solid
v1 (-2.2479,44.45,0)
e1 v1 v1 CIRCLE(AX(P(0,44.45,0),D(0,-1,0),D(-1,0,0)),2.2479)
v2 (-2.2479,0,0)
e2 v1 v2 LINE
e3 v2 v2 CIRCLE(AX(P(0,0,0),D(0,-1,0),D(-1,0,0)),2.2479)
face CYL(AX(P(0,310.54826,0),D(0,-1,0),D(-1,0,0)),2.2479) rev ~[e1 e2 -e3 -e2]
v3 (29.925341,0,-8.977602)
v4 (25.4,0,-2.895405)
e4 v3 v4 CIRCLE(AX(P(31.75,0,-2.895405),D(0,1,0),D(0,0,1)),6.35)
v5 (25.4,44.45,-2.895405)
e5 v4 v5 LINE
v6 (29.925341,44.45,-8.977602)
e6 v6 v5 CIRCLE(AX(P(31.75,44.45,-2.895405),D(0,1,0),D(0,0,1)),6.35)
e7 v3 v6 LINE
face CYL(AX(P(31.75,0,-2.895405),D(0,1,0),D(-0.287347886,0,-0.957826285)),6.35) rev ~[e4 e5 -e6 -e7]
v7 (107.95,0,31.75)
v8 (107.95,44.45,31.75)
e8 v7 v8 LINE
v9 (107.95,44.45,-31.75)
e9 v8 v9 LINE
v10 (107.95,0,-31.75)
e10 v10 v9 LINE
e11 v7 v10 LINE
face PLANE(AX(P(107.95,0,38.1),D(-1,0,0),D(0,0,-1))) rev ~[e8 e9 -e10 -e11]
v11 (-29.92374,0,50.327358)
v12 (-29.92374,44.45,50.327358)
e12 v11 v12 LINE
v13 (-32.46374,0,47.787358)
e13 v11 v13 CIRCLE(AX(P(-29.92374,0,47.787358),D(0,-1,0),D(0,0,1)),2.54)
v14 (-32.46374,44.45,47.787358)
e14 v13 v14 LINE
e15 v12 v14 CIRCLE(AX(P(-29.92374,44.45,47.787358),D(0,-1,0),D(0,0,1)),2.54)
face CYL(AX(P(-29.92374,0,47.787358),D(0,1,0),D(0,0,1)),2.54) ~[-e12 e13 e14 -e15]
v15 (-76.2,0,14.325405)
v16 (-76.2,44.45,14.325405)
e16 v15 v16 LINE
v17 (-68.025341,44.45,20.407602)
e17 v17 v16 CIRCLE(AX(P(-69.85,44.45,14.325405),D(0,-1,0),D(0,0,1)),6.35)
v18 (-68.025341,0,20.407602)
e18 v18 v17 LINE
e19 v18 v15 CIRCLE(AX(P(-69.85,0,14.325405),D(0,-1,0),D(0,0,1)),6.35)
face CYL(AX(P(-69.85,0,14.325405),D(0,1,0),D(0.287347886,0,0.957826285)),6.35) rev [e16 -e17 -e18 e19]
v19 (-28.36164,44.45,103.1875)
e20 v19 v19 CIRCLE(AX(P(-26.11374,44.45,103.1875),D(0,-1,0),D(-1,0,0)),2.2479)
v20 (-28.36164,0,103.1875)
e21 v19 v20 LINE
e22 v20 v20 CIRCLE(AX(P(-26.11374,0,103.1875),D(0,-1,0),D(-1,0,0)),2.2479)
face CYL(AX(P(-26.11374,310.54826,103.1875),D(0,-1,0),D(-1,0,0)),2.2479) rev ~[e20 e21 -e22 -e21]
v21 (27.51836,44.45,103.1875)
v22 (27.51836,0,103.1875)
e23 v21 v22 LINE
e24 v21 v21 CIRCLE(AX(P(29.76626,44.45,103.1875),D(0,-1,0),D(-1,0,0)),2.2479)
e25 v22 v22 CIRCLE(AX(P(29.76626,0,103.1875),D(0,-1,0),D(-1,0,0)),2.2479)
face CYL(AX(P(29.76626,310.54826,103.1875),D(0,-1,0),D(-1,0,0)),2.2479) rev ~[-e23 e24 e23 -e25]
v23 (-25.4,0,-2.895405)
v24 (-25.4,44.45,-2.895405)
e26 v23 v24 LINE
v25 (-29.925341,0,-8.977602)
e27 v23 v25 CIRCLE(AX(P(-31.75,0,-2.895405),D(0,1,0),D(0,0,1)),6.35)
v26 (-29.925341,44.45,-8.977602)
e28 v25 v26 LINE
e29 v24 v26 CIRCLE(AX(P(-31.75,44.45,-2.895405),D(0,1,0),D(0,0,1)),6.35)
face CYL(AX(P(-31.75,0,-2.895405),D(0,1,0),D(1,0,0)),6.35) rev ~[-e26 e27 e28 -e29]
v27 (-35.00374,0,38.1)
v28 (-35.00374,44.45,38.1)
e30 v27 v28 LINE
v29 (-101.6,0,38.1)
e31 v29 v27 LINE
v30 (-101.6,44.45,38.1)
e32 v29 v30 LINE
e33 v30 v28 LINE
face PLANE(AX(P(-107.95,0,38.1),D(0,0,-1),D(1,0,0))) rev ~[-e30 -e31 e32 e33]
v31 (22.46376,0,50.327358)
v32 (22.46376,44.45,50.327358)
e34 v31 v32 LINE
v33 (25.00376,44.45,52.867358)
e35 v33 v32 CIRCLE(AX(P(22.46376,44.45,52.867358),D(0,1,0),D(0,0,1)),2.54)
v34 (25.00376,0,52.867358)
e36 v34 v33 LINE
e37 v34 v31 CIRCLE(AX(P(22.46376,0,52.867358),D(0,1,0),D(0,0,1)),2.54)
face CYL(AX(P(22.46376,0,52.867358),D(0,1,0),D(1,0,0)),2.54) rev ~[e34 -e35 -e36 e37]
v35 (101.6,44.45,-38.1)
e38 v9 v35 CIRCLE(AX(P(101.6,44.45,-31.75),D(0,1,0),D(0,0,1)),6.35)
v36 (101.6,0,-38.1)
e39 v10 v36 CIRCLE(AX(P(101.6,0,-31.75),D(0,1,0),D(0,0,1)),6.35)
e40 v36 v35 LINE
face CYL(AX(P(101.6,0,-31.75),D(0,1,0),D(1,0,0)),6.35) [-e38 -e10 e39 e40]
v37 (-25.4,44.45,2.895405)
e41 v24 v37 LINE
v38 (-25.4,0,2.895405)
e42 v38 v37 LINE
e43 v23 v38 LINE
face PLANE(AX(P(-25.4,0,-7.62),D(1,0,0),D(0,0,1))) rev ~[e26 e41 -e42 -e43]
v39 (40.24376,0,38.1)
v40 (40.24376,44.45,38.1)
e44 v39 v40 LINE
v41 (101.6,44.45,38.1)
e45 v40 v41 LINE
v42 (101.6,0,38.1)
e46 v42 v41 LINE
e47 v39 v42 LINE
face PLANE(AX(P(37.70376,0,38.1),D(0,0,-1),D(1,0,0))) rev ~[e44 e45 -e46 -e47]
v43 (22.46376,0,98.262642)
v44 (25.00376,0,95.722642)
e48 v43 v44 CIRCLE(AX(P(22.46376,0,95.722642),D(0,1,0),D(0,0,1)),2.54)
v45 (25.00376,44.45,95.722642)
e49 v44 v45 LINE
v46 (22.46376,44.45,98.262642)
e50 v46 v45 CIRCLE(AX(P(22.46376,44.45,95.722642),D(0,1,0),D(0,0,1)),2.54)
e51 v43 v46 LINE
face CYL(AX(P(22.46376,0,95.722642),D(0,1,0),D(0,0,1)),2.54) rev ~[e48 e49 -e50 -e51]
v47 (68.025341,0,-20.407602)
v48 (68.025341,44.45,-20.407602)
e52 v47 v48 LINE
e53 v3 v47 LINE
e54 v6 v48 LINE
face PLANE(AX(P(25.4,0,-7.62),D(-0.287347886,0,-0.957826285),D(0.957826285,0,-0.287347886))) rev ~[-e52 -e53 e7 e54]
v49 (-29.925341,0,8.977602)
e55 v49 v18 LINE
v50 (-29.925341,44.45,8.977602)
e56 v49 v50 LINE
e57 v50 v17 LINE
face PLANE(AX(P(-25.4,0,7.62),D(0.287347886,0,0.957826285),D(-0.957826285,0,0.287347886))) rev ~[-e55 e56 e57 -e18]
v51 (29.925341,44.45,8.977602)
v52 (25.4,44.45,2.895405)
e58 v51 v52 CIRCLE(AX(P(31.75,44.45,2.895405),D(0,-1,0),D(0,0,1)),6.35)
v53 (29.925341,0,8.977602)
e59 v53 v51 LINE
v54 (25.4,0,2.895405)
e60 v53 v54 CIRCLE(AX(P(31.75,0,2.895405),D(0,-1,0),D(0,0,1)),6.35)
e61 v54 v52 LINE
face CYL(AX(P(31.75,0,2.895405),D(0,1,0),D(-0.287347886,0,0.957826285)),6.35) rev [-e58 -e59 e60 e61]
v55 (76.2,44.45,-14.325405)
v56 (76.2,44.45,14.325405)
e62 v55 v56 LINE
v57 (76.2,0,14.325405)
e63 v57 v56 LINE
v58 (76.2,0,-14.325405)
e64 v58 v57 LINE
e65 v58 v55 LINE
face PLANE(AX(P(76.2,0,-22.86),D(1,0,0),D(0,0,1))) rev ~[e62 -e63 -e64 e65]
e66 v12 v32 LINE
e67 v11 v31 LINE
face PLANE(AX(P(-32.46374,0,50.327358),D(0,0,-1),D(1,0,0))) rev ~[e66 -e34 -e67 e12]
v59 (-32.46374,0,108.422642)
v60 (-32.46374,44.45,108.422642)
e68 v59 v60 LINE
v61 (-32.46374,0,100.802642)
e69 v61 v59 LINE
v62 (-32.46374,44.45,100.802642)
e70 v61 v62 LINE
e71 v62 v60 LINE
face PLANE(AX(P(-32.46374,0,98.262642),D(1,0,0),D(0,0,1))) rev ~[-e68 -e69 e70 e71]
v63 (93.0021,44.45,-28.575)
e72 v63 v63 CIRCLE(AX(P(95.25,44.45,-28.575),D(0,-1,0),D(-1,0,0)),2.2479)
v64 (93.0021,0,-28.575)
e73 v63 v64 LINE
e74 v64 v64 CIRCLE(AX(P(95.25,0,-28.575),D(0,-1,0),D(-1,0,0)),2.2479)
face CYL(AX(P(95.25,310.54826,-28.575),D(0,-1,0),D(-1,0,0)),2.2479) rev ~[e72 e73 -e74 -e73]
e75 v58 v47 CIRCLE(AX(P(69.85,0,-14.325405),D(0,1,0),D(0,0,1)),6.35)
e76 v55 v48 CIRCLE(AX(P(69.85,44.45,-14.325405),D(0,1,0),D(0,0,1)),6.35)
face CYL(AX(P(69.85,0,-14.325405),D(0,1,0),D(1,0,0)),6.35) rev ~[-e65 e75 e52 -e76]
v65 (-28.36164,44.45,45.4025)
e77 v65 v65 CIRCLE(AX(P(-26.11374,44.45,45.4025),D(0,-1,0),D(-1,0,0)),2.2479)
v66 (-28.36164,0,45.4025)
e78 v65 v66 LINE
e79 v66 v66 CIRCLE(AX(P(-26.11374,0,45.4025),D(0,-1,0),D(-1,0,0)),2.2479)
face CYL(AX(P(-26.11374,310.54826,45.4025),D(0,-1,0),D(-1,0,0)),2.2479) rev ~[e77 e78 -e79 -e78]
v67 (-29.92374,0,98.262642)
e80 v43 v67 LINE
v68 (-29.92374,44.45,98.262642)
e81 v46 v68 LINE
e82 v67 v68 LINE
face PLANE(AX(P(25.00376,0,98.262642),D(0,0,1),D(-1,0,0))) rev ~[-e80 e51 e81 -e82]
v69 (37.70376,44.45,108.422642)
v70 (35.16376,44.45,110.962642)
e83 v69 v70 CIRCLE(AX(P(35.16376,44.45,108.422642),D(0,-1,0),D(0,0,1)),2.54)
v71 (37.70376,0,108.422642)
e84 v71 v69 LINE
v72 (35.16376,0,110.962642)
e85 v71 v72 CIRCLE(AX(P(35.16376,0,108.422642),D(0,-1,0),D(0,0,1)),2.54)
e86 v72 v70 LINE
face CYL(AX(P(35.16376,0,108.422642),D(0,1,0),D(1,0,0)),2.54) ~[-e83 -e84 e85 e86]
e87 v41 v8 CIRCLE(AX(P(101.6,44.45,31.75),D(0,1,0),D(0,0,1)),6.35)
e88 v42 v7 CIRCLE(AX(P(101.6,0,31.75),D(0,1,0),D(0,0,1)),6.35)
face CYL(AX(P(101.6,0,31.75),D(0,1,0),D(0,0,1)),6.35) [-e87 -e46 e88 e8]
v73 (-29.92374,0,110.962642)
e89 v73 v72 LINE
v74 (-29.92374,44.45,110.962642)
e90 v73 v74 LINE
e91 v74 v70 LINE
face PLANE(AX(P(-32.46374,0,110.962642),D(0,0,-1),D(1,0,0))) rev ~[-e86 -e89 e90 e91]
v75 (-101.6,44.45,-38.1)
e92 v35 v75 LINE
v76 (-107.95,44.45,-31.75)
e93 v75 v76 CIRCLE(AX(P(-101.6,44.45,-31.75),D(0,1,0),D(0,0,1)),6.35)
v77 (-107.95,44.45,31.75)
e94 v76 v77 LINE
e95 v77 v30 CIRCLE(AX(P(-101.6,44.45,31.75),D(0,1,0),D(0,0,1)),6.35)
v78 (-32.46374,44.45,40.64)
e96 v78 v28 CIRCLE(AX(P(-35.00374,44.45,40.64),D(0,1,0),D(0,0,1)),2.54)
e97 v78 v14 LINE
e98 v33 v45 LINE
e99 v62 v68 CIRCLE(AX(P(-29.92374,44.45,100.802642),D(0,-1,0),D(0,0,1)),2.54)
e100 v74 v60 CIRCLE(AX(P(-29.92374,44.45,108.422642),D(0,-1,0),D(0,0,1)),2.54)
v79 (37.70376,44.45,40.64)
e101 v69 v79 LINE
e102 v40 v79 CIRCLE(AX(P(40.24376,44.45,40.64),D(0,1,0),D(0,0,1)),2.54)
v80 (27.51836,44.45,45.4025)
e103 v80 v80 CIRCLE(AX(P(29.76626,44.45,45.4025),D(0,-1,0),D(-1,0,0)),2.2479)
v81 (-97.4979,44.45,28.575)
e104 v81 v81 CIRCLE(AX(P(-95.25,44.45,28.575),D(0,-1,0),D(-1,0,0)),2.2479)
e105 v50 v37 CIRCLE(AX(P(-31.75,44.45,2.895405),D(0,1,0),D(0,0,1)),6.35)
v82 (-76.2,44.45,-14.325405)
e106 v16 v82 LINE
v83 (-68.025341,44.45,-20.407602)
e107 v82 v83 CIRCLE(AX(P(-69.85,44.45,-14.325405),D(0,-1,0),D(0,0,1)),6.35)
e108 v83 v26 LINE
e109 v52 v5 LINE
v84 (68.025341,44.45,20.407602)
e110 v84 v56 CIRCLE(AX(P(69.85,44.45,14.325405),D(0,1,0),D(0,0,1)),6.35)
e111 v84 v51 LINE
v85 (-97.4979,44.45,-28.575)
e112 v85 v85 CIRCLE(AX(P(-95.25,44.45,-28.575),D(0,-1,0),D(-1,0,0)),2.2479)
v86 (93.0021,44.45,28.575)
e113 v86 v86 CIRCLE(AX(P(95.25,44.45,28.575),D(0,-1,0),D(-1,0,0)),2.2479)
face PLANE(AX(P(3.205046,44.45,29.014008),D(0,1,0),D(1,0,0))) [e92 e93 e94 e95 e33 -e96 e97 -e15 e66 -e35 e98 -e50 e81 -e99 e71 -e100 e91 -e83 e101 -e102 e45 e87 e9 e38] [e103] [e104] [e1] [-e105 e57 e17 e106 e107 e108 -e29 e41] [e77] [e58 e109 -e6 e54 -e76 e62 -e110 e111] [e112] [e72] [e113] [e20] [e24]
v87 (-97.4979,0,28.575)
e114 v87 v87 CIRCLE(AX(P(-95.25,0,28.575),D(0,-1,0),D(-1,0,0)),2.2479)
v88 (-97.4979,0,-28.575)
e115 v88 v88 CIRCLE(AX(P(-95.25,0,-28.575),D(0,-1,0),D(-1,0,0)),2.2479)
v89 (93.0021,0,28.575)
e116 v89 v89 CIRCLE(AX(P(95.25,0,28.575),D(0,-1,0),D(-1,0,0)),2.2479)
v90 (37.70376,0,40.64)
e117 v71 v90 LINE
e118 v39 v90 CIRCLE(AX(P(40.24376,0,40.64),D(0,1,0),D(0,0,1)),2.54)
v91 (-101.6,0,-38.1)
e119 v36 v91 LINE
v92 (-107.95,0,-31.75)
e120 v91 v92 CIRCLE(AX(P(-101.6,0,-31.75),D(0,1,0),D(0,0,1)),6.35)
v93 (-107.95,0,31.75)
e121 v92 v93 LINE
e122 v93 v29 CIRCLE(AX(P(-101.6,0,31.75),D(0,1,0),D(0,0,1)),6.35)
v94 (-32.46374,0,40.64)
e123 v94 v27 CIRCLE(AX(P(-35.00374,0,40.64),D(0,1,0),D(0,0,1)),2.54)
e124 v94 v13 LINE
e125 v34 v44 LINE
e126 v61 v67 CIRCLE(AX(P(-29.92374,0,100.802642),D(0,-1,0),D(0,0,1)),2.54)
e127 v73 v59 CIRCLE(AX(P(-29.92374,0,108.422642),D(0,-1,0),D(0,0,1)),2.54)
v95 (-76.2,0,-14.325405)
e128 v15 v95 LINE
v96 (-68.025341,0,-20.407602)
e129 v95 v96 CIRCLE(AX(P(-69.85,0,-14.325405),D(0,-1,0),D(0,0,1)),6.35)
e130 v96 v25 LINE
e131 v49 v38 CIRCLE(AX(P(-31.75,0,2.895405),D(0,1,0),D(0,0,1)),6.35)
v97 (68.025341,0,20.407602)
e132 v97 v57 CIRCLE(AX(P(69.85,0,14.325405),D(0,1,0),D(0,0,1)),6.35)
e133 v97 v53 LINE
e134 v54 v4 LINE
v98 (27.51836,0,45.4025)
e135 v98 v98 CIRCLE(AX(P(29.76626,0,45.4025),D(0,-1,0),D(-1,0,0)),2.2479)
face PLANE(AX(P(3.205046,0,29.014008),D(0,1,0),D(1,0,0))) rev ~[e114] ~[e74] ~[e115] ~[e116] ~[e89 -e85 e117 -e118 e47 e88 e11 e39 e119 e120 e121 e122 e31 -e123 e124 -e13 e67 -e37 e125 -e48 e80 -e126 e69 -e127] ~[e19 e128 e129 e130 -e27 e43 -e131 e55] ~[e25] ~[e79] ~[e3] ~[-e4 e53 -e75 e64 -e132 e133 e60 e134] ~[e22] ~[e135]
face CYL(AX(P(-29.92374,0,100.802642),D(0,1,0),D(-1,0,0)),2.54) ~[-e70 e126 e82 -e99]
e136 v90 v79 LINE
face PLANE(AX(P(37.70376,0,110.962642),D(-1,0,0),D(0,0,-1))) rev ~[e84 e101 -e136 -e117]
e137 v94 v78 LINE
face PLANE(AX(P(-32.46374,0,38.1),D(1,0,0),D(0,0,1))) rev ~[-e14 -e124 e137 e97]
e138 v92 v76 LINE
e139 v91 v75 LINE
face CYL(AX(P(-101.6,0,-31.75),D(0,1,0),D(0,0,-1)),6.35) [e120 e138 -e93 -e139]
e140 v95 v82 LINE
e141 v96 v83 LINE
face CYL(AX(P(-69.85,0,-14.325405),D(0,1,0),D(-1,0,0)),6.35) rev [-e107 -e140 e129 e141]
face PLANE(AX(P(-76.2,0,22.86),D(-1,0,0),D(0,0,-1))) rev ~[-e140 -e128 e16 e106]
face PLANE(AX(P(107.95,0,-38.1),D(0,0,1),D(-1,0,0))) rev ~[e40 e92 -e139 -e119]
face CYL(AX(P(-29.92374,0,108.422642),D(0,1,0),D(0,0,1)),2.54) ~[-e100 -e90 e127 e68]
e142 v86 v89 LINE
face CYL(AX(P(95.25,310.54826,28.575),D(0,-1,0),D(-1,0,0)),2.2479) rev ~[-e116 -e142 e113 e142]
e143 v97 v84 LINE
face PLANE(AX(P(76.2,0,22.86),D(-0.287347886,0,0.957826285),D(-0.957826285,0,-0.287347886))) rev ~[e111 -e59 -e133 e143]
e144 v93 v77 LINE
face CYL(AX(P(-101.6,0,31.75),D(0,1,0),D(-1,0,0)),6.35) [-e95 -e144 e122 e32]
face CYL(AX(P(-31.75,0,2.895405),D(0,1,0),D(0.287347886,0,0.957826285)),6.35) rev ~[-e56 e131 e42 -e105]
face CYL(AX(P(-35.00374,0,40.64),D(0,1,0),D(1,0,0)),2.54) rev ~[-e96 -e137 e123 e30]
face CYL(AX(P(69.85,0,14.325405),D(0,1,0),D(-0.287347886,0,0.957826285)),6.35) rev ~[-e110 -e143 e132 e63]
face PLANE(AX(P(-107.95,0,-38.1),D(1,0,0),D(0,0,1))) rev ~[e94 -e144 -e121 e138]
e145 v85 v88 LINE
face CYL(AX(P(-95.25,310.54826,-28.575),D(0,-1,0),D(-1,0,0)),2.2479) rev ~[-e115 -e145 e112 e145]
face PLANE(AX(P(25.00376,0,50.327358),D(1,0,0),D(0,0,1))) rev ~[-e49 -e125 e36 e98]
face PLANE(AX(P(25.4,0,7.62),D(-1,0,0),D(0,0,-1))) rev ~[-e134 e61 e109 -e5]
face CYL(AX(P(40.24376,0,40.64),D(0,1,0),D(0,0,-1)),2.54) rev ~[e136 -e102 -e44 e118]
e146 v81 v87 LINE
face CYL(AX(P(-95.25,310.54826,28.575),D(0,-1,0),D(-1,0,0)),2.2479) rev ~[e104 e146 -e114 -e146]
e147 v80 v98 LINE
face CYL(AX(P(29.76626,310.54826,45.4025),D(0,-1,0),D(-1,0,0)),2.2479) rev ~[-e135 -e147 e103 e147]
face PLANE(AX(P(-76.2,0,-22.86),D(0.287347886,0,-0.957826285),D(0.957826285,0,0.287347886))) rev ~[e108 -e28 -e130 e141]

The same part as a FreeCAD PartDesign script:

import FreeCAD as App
import Part
import Sketcher
Q = App.Units.Quantity


def edges_at(feature, points):
    """Names of the edges that pass closest to the given points."""
    edges = feature.Shape.Edges
    near = lambda p: min(range(len(edges)), key=lambda i: edges[i].distToShape(Part.Vertex(*p))[0])
    return sorted({f"Edge{near(p) + 1}" for p in points})

doc = App.newDocument("Part")
body = doc.addObject("PartDesign::Body", "Body")

sketch1 = body.newObject("Sketcher::SketchObject", "Sketch")
sketch1.AttachmentSupport = (doc.getObject("XZ_Plane"), [""])
sketch1.MapMode = "FlatFace"
sketch1.addGeometry([
    Part.LineSegment(App.Vector(37.70376, 38.1, 0), App.Vector(107.95, 38.1, 0)),
    Part.LineSegment(App.Vector(107.95, 38.1, 0), App.Vector(107.95, -38.1, 0)),
    Part.LineSegment(App.Vector(107.95, -38.1, 0), App.Vector(-107.95, -38.1, 0)),
    Part.LineSegment(App.Vector(-107.95, -38.1, 0), App.Vector(-107.95, 38.1, 0)),
    Part.LineSegment(App.Vector(-107.95, 38.1, 0), App.Vector(-32.46374, 38.1, 0)),
    Part.LineSegment(App.Vector(-32.46374, 38.1, 0), App.Vector(-32.46374, 50.327358, 0)),
    Part.LineSegment(App.Vector(-32.46374, 50.327358, 0), App.Vector(25.00376, 50.327358, 0)),
    Part.LineSegment(App.Vector(25.00376, 50.327358, 0), App.Vector(25.00376, 98.262642, 0)),
    Part.LineSegment(App.Vector(25.00376, 98.262642, 0), App.Vector(-32.46374, 98.262642, 0)),
    Part.LineSegment(App.Vector(-32.46374, 98.262642, 0), App.Vector(-32.46374, 110.962642, 0)),
    Part.LineSegment(App.Vector(-32.46374, 110.962642, 0), App.Vector(37.70376, 110.962642, 0)),
    Part.LineSegment(App.Vector(37.70376, 110.962642, 0), App.Vector(37.70376, 38.1, 0)),
    Part.LineSegment(App.Vector(-25.4, 7.62, 0), App.Vector(-76.2, 22.86, 0)),
    Part.LineSegment(App.Vector(-76.2, 22.86, 0), App.Vector(-76.2, -22.86, 0)),
    Part.LineSegment(App.Vector(-76.2, -22.86, 0), App.Vector(-25.4, -7.62, 0)),
    Part.LineSegment(App.Vector(-25.4, -7.62, 0), App.Vector(-25.4, 7.62, 0)),
    Part.LineSegment(App.Vector(76.2, 22.86, 0), App.Vector(25.4, 7.62, 0)),
    Part.LineSegment(App.Vector(25.4, 7.62, 0), App.Vector(25.4, -7.62, 0)),
    Part.LineSegment(App.Vector(25.4, -7.62, 0), App.Vector(76.2, -22.86, 0)),
    Part.LineSegment(App.Vector(76.2, -22.86, 0), App.Vector(76.2, 22.86, 0)),
], False)
sketch1.addConstraint([
    Sketcher.Constraint("Coincident", 0, 2, 1, 1),
    Sketcher.Constraint("Coincident", 1, 2, 2, 1),
    Sketcher.Constraint("Coincident", 2, 2, 3, 1),
    Sketcher.Constraint("Coincident", 3, 2, 4, 1),
    Sketcher.Constraint("Coincident", 4, 2, 5, 1),
    Sketcher.Constraint("Coincident", 5, 2, 6, 1),
    Sketcher.Constraint("Coincident", 6, 2, 7, 1),
    Sketcher.Constraint("Coincident", 7, 2, 8, 1),
    Sketcher.Constraint("Coincident", 8, 2, 9, 1),
    Sketcher.Constraint("Coincident", 9, 2, 10, 1),
    Sketcher.Constraint("Coincident", 10, 2, 11, 1),
    Sketcher.Constraint("Coincident", 11, 2, 0, 1),
    Sketcher.Constraint("Coincident", 12, 2, 13, 1),
    Sketcher.Constraint("Coincident", 13, 2, 14, 1),
    Sketcher.Constraint("Coincident", 14, 2, 15, 1),
    Sketcher.Constraint("Coincident", 15, 2, 12, 1),
    Sketcher.Constraint("Coincident", 16, 2, 17, 1),
    Sketcher.Constraint("Coincident", 17, 2, 18, 1),
    Sketcher.Constraint("Coincident", 18, 2, 19, 1),
    Sketcher.Constraint("Coincident", 19, 2, 16, 1),
    Sketcher.Constraint("Horizontal", 0),
    Sketcher.Constraint("Vertical", 1),
    Sketcher.Constraint("Horizontal", 2),
    Sketcher.Constraint("Vertical", 3),
    Sketcher.Constraint("Horizontal", 4),
    Sketcher.Constraint("Vertical", 5),
    Sketcher.Constraint("Horizontal", 6),
    Sketcher.Constraint("Vertical", 7),
    Sketcher.Constraint("Horizontal", 8),
    Sketcher.Constraint("Vertical", 9),
    Sketcher.Constraint("Horizontal", 10),
    Sketcher.Constraint("Vertical", 11),
    Sketcher.Constraint("Vertical", 13),
    Sketcher.Constraint("Vertical", 15),
    Sketcher.Constraint("Vertical", 17),
    Sketcher.Constraint("Vertical", 19),
    Sketcher.Constraint("Symmetric", 0, 2, 2, 2, -1, 1),
    Sketcher.Constraint("Symmetric", 14, 2, 16, 2, -1, 1),
    Sketcher.Constraint("Symmetric", 12, 2, 18, 2, -1, 1),
    Sketcher.Constraint("Parallel", 14, 16),
    Sketcher.Constraint("Parallel", 12, 18),
    Sketcher.Constraint("Horizontal", 0, 2, 3, 2),
    Sketcher.Constraint("Horizontal", 15, 2, 16, 2),
    Sketcher.Constraint("Horizontal", 13, 2, 18, 2),
    Sketcher.Constraint("Vertical", 5, 2, 8, 2),
    Sketcher.Constraint("DistanceY", 1, 2, 1, 1, Q("3 in")),
    Sketcher.Constraint("DistanceX", 2, 2, 2, 1, Q("8.5 in")),
    Sketcher.Constraint("DistanceY", 9, 1, 9, 2, Q("0.5 in")),
    Sketcher.Constraint("DistanceY", 13, 2, 13, 1, Q("1.8 in")),
    Sketcher.Constraint("DistanceY", 15, 1, 15, 2, Q("0.6 in")),
    Sketcher.Constraint("DistanceX", 12, 2, -1, 1, Q("3 in")),
    Sketcher.Constraint("DistanceX", 14, 2, -1, 1, Q("1 in")),
    Sketcher.Constraint("DistanceX", 7, 2, 10, 2, Q("0.5 in")),
    Sketcher.Constraint("DistanceX", 0, 1, 0, 2, Q("2.7656 in")),
    Sketcher.Constraint("DistanceX", 4, 1, 4, 2, Q("2.9719 in")),
    Sketcher.Constraint("DistanceY", 5, 1, 5, 2, Q("12.227358 mm")),
    Sketcher.Constraint("DistanceY", 7, 1, 7, 2, Q("47.935284 mm")),
])
pad1 = body.newObject("PartDesign::Pad", "Pad")
pad1.Profile = sketch1
pad1.Length = Q("1.75 in")
pad1.Reversed = True
doc.recompute()

fillet = body.newObject("PartDesign::Fillet", "Fillet")
fillet.Base = (pad1, edges_at(pad1, [
    (-107.95, 22.225, -38.1),
    (107.95, 22.225, -38.1),
    (107.95, 22.225, 38.1),
    (-107.95, 22.225, 38.1),
    (-76.2, 22.225, -22.86),
    (-76.2, 22.225, 22.86),
    (-25.4, 22.225, 7.62),
    (-25.4, 22.225, -7.62),
    (25.4, 22.225, -7.62),
    (25.4, 22.225, 7.62),
    (76.2, 22.225, 22.86),
    (76.2, 22.225, -22.86),
]))
fillet.Radius = Q("0.25 in")

sketch2 = body.newObject("Sketcher::SketchObject", "Sketch001")
sketch2.AttachmentSupport = (doc.getObject("XZ_Plane"), [""])
sketch2.MapMode = "FlatFace"
sketch2.AttachmentOffset = App.Placement(App.Vector(0, 0, -1.75 * 25.4), App.Rotation())
sketch2.addGeometry([
    Part.Circle(App.Vector(95.25, -28.575, 0), App.Vector(0, 0, 1), 2.2479),
    Part.Circle(App.Vector(95.25, 28.575, 0), App.Vector(0, 0, 1), 2.2479),
    Part.Circle(App.Vector(-95.25, -28.575, 0), App.Vector(0, 0, 1), 2.2479),
    Part.Circle(App.Vector(-95.25, 28.575, 0), App.Vector(0, 0, 1), 2.2479),
    Part.Circle(App.Vector(0, 0, 0), App.Vector(0, 0, 1), 2.2479),
    Part.Circle(App.Vector(-26.11374, 45.4025, 0), App.Vector(0, 0, 1), 2.2479),
    Part.Circle(App.Vector(29.76626, 45.4025, 0), App.Vector(0, 0, 1), 2.2479),
    Part.Circle(App.Vector(29.76626, 103.1875, 0), App.Vector(0, 0, 1), 2.2479),
    Part.Circle(App.Vector(-26.11374, 103.1875, 0), App.Vector(0, 0, 1), 2.2479),
], False)
sketch2.addConstraint([
    Sketcher.Constraint("Coincident", 4, 3, -1, 1),
    Sketcher.Constraint("Equal", 0, 1),
    Sketcher.Constraint("Equal", 1, 2),
    Sketcher.Constraint("Equal", 2, 3),
    Sketcher.Constraint("Equal", 3, 4),
    Sketcher.Constraint("Equal", 4, 5),
    Sketcher.Constraint("Equal", 5, 6),
    Sketcher.Constraint("Equal", 6, 7),
    Sketcher.Constraint("Equal", 7, 8),
    Sketcher.Constraint("Symmetric", 1, 3, 2, 3, -1, 1),
    Sketcher.Constraint("Symmetric", 0, 3, 3, 3, -1, 1),
    Sketcher.Constraint("Symmetric", 0, 3, 2, 3, -2),
    Sketcher.Constraint("Horizontal", 5, 3, 6, 3),
    Sketcher.Constraint("Horizontal", 7, 3, 8, 3),
    Sketcher.Constraint("Vertical", 6, 3, 7, 3),
    Sketcher.Constraint("Vertical", 5, 3, 8, 3),
    Sketcher.Constraint("Diameter", 0, Q("0.177 in")),
    Sketcher.Constraint("DistanceX", 2, 3, 0, 3, Q("7.5 in")),
    Sketcher.Constraint("DistanceX", 5, 3, 6, 3, Q("2.2 in")),
    Sketcher.Constraint("DistanceY", 0, 3, 1, 3, Q("2.25 in")),
    Sketcher.Constraint("DistanceY", -1, 1, 7, 3, Q("4.0625 in")),
    Sketcher.Constraint("DistanceY", 6, 3, 7, 3, Q("2.275 in")),
    Sketcher.Constraint("DistanceX", 5, 3, -1, 1, Q("1.0281 in")),
])
doc.recompute()
hole = body.newObject("PartDesign::Hole", "Hole")
hole.Profile = sketch2
hole.ThreadType = "None"
hole.Diameter = Q("0.177 in")
hole.DepthType = "ThroughAll"
hole.Reversed = True
doc.recompute()

fillet2 = body.newObject("PartDesign::Fillet", "Fillet001")
fillet2.Base = (hole, edges_at(hole, [
    (37.704, 22.225, 38.1),
    (37.704, 22.225, 110.963),
    (-32.464, 22.225, 110.963),
    (-32.464, 22.225, 98.263),
    (25.004, 22.225, 98.263),
    (25.004, 22.225, 50.327),
    (-32.464, 22.225, 50.327),
    (-32.464, 22.225, 38.1),
]))
fillet2.Radius = Q("0.1 in")

doc.recompute()
